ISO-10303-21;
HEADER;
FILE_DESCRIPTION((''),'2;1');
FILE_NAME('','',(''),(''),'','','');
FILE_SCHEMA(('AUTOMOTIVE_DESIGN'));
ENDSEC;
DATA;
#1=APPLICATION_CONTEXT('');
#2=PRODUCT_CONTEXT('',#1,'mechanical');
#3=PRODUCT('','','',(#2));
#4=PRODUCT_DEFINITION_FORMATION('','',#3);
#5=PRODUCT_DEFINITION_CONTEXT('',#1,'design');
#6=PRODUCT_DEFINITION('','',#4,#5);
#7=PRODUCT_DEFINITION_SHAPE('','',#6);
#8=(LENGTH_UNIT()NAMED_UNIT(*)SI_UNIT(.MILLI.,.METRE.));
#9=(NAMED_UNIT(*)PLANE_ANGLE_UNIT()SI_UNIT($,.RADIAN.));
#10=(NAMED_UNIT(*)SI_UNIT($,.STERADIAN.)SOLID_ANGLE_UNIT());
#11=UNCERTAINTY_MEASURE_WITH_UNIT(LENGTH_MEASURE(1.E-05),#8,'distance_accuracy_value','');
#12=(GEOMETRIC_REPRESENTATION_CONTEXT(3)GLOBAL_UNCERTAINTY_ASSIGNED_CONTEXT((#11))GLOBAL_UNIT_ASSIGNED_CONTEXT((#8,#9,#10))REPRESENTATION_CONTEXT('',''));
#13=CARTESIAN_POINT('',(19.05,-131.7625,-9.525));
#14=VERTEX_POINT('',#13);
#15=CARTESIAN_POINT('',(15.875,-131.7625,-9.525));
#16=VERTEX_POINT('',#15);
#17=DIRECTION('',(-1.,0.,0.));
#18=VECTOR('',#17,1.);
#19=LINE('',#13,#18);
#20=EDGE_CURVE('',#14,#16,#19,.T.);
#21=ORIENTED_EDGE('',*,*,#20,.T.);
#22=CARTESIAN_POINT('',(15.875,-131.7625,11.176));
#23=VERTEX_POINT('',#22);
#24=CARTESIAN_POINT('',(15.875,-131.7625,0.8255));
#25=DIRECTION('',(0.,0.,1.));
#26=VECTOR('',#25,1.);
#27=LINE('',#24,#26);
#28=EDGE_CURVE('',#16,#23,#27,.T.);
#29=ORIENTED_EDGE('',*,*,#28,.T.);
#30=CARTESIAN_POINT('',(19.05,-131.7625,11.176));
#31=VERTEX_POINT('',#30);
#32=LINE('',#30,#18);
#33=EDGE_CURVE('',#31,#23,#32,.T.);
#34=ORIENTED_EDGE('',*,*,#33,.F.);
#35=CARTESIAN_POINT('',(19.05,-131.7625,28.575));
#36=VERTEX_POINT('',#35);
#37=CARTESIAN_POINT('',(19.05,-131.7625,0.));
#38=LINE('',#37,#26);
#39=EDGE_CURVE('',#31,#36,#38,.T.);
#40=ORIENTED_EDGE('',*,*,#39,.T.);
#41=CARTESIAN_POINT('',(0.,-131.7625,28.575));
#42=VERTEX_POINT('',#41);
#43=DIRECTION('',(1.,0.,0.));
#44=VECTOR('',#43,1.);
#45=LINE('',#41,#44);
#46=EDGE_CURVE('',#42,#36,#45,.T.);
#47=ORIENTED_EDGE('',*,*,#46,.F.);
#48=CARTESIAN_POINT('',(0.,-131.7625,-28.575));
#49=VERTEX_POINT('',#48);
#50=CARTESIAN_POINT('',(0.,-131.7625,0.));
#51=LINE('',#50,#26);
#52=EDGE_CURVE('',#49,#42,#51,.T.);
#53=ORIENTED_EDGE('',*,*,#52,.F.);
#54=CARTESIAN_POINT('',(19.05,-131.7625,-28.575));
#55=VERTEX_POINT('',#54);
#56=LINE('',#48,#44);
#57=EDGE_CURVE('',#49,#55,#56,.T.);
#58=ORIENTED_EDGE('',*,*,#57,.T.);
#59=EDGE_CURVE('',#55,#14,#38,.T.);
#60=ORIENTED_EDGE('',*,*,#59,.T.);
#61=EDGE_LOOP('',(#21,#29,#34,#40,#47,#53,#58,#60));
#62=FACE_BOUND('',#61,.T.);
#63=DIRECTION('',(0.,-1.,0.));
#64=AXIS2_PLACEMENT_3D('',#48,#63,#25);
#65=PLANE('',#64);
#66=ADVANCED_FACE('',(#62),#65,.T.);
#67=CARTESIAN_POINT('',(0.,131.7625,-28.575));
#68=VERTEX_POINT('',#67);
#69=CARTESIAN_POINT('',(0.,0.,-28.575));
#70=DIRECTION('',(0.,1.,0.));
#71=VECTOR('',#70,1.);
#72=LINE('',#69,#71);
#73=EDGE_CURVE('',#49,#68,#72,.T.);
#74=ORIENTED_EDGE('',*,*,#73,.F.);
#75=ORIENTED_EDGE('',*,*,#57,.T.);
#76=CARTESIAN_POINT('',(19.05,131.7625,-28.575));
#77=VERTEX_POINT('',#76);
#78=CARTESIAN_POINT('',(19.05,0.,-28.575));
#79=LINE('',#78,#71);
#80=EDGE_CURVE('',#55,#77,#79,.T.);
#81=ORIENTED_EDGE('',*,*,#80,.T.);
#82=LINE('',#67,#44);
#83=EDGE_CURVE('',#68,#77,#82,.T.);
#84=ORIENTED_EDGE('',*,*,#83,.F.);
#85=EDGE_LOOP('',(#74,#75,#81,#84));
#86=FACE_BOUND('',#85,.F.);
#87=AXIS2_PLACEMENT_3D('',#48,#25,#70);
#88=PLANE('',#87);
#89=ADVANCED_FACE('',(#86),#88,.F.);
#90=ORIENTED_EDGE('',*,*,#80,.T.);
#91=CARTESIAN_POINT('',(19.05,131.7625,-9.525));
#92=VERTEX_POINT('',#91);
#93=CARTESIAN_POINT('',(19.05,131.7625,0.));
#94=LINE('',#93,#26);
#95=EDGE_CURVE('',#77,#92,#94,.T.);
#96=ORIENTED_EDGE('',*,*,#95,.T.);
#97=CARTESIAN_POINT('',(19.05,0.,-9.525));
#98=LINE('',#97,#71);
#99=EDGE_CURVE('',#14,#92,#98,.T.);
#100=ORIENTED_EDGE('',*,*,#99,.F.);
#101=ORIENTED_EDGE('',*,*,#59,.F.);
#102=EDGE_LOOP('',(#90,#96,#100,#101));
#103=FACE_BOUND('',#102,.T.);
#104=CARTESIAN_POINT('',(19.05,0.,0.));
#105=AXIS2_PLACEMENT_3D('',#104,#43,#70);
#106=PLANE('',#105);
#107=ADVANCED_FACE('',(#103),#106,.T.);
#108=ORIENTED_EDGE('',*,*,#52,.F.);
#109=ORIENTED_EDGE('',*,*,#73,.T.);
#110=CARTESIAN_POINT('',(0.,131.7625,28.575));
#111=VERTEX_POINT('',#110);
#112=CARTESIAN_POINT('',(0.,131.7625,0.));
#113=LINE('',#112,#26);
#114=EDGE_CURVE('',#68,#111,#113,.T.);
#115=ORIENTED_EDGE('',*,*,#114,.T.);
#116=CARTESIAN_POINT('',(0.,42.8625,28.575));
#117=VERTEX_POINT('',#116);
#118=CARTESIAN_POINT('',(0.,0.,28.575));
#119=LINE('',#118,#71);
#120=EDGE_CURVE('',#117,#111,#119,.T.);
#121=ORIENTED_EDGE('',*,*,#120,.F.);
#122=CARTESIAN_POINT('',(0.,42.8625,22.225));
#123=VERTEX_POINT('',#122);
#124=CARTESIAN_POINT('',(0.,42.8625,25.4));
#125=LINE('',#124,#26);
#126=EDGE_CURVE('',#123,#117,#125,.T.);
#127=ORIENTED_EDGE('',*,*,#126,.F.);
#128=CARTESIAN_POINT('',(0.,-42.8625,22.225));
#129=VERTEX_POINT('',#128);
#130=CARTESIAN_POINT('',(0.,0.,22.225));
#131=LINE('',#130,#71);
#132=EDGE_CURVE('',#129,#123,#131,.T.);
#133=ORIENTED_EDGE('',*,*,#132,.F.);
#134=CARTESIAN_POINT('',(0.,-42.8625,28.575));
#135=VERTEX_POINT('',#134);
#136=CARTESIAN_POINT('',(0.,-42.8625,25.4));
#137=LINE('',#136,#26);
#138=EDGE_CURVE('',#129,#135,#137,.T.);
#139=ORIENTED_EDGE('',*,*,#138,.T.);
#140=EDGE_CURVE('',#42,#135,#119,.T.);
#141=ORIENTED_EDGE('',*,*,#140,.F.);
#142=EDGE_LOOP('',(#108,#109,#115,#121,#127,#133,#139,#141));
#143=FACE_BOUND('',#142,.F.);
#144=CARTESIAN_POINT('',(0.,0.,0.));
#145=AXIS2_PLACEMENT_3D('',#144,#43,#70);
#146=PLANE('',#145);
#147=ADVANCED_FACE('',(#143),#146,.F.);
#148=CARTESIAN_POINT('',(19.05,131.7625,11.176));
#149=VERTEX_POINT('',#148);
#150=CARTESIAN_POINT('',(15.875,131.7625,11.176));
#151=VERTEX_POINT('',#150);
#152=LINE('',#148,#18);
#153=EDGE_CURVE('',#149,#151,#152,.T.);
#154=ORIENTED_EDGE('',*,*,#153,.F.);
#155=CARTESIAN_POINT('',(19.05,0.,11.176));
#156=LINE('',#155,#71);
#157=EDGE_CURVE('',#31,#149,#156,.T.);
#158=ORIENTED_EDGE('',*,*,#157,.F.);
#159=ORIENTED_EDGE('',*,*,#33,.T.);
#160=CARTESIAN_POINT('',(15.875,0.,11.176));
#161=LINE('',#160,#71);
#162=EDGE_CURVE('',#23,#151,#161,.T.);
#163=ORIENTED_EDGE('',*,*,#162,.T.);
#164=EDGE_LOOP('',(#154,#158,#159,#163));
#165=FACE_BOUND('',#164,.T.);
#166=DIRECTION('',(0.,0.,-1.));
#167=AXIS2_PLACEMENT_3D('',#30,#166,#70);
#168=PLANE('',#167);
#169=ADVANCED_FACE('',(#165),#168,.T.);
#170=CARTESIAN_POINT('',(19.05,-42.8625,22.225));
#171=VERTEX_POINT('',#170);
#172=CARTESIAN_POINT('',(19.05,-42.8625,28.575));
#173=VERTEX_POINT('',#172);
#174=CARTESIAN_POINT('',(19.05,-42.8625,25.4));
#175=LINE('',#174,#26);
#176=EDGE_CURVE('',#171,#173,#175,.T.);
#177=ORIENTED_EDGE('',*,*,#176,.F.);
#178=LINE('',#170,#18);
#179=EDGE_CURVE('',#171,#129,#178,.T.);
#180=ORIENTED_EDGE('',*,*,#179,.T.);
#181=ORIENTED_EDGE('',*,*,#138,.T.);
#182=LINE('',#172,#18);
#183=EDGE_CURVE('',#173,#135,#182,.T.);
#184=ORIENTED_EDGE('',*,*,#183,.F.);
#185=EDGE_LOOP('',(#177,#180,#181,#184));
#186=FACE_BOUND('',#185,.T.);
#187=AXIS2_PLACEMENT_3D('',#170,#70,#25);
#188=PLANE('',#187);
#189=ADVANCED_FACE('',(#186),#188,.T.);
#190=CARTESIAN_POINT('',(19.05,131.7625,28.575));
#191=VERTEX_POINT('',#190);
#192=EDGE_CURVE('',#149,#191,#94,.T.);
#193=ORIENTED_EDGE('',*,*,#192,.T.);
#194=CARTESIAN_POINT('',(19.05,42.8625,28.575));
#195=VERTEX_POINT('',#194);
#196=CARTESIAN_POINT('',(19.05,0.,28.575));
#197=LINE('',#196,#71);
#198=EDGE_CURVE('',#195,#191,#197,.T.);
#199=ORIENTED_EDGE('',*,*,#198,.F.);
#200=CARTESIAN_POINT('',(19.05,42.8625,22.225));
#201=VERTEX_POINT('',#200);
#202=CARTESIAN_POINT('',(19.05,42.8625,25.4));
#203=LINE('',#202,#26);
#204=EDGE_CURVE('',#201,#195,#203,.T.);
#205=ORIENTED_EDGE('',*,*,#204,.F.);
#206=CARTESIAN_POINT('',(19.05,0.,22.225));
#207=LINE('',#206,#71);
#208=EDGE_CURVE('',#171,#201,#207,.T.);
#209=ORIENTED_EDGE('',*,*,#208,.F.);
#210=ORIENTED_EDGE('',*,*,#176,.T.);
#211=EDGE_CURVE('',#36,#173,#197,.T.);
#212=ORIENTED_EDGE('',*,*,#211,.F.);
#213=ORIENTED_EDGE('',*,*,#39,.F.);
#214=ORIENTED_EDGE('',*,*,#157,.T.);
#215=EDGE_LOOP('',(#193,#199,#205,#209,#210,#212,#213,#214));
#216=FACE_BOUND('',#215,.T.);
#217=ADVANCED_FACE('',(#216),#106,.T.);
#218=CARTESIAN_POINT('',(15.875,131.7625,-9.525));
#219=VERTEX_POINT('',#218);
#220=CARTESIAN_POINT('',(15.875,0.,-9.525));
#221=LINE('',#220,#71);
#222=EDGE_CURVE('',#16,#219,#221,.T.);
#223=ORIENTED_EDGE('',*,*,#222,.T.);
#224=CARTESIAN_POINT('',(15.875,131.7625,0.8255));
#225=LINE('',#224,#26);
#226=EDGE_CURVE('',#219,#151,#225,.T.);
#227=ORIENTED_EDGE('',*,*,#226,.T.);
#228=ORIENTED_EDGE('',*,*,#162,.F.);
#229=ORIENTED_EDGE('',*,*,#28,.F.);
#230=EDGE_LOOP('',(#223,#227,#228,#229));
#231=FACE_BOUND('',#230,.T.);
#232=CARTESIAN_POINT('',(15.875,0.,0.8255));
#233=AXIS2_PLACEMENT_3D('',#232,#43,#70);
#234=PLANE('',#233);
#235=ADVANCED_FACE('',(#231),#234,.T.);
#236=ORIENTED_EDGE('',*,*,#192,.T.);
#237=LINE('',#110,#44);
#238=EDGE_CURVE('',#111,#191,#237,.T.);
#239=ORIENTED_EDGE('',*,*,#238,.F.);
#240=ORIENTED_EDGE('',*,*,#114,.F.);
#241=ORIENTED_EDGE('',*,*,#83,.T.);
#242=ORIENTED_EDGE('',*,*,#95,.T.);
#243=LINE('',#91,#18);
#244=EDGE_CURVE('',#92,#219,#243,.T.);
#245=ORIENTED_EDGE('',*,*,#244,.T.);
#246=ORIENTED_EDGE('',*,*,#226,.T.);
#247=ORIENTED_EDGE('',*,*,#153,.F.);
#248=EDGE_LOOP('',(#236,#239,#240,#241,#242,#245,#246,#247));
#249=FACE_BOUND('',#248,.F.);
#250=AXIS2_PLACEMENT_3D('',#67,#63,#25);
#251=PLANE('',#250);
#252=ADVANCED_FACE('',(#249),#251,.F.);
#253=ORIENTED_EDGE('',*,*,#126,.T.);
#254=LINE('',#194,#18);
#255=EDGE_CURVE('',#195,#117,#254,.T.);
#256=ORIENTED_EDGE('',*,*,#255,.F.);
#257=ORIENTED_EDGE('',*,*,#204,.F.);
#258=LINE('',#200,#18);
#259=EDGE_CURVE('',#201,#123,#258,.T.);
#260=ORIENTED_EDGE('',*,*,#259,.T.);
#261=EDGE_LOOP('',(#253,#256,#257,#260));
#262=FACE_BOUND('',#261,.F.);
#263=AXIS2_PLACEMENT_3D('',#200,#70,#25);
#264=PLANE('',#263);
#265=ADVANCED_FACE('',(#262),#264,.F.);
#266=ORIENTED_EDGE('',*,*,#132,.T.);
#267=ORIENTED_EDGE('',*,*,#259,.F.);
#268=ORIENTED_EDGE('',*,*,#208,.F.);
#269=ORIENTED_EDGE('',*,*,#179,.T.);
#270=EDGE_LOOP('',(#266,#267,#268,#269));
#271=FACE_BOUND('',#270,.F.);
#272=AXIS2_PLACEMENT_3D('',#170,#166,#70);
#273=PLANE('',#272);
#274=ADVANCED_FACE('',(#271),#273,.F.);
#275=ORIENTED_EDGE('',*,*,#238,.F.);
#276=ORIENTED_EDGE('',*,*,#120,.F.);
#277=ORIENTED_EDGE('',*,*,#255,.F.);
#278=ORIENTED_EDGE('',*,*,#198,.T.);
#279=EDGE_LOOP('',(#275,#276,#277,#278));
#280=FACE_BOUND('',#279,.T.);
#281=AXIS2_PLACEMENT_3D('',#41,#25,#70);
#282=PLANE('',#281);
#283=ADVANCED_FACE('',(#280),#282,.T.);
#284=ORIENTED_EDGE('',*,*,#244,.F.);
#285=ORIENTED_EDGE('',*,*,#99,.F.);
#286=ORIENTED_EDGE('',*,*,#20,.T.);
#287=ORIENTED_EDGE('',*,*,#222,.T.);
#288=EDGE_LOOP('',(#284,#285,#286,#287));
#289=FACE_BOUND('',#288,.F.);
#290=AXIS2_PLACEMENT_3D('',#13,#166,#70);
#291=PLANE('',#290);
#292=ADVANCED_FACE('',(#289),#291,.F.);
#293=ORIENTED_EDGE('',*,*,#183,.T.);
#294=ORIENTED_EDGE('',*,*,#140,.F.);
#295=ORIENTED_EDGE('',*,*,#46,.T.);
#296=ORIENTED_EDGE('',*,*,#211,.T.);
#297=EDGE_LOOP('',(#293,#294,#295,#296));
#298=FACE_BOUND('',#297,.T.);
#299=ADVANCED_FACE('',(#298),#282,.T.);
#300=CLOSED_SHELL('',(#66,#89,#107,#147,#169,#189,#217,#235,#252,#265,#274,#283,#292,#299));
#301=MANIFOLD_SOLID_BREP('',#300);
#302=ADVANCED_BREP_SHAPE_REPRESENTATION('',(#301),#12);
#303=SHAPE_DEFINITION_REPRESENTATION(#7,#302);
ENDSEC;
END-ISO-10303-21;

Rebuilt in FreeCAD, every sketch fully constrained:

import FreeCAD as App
import Part
import Sketcher

V = App.Vector
Q = App.Units.Quantity

doc = App.newDocument("Part")
body = doc.addObject("PartDesign::Body", "Body")

# Sketch on YZ plane
sketch1 = body.newObject("Sketcher::SketchObject", "Sketch")
sketch1.AttachmentSupport = (doc.getObject("YZ_Plane"), [""])
sketch1.MapMode = "FlatFace"
sketch1.addGeometry(Part.LineSegment(V(-132, 29, 0), V(-132, -29, 0)), False)
sketch1.addGeometry(Part.LineSegment(V(-132, -29, 0), V(132, -29, 0)), False)
sketch1.addGeometry(Part.LineSegment(V(132, -29, 0), V(132, 29, 0)), False)
sketch1.addGeometry(Part.LineSegment(V(132, 29, 0), V(-132, 29, 0)), False)
sketch1.addConstraint(Sketcher.Constraint("Coincident", 0, 2, 1, 1))
sketch1.addConstraint(Sketcher.Constraint("Coincident", 1, 2, 2, 1))
sketch1.addConstraint(Sketcher.Constraint("Coincident", 2, 2, 3, 1))
sketch1.addConstraint(Sketcher.Constraint("Coincident", 3, 2, 0, 1))
sketch1.addConstraint(Sketcher.Constraint("Vertical", 0))
sketch1.addConstraint(Sketcher.Constraint("Horizontal", 1))
sketch1.addConstraint(Sketcher.Constraint("Vertical", 2))
sketch1.addConstraint(Sketcher.Constraint("Horizontal", 3))
sketch1.addConstraint(Sketcher.Constraint("Symmetric", 0, 2, 2, 2, -1, 1))
sketch1.addConstraint(Sketcher.Constraint("DistanceY", 0, 2, 0, 1, Q("2.25 in")))
sketch1.addConstraint(Sketcher.Constraint("DistanceX", 1, 1, 1, 2, Q("10.375 in")))
pad1 = body.newObject("PartDesign::Pad", "Pad")
pad1.Profile = sketch1
pad1.Length = Q("0.75 in")

# Sketch on YZ plane
sketch2 = body.newObject("Sketcher::SketchObject", "Sketch001")
sketch2.AttachmentSupport = (doc.getObject("YZ_Plane"), [""])
sketch2.MapMode = "FlatFace"
sketch2.AttachmentOffset = App.Placement(V(0, 0, 0.75 * 25.4), App.Rotation())
sketch2.addGeometry(Part.LineSegment(V(-132, 11, 0), V(-132, -10, 0)), False)
sketch2.addGeometry(Part.LineSegment(V(-132, -10, 0), V(132, -10, 0)), False)
sketch2.addGeometry(Part.LineSegment(V(132, -10, 0), V(132, 11, 0)), False)
sketch2.addGeometry(Part.LineSegment(V(132, 11, 0), V(-132, 11, 0)), False)
sketch2.addConstraint(Sketcher.Constraint("Coincident", 0, 2, 1, 1))
sketch2.addConstraint(Sketcher.Constraint("Coincident", 1, 2, 2, 1))
sketch2.addConstraint(Sketcher.Constraint("Coincident", 2, 2, 3, 1))
sketch2.addConstraint(Sketcher.Constraint("Coincident", 3, 2, 0, 1))
sketch2.addConstraint(Sketcher.Constraint("Vertical", 0))
sketch2.addConstraint(Sketcher.Constraint("Horizontal", 1))
sketch2.addConstraint(Sketcher.Constraint("Vertical", 2))
sketch2.addConstraint(Sketcher.Constraint("Horizontal", 3))
sketch2.addConstraint(Sketcher.Constraint("DistanceX", 1, 1, 1, 2, Q("10.375 in")))
sketch2.addConstraint(Sketcher.Constraint("DistanceY", 0, 2, 0, 1, Q("0.815 in")))
sketch2.addConstraint(Sketcher.Constraint("DistanceY", -1, 1, 2, 2, Q("0.44 in")))
sketch2.addConstraint(Sketcher.Constraint("DistanceX", 0, 2, -1, 1, Q("5.1875 in")))
pocket1 = body.newObject("PartDesign::Pocket", "Pocket")
pocket1.Profile = sketch2
pocket1.Length = Q("0.125 in")

# Sketch on YZ plane
sketch3 = body.newObject("Sketcher::SketchObject", "Sketch002")
sketch3.AttachmentSupport = (doc.getObject("YZ_Plane"), [""])
sketch3.MapMode = "FlatFace"
sketch3.AttachmentOffset = App.Placement(V(0, 0, 0.75 * 25.4), App.Rotation())
sketch3.addGeometry(Part.LineSegment(V(-43, 29, 0), V(-43, 22, 0)), False)
sketch3.addGeometry(Part.LineSegment(V(-43, 22, 0), V(43, 22, 0)), False)
sketch3.addGeometry(Part.LineSegment(V(43, 22, 0), V(43, 29, 0)), False)
sketch3.addGeometry(Part.LineSegment(V(43, 29, 0), V(-43, 29, 0)), False)
sketch3.addConstraint(Sketcher.Constraint("Coincident", 0, 2, 1, 1))
sketch3.addConstraint(Sketcher.Constraint("Coincident", 1, 2, 2, 1))
sketch3.addConstraint(Sketcher.Constraint("Coincident", 2, 2, 3, 1))
sketch3.addConstraint(Sketcher.Constraint("Coincident", 3, 2, 0, 1))
sketch3.addConstraint(Sketcher.Constraint("Vertical", 0))
sketch3.addConstraint(Sketcher.Constraint("Horizontal", 1))
sketch3.addConstraint(Sketcher.Constraint("Vertical", 2))
sketch3.addConstraint(Sketcher.Constraint("Horizontal", 3))
sketch3.addConstraint(Sketcher.Constraint("DistanceY", 0, 2, 0, 1, Q("0.25 in")))
sketch3.addConstraint(Sketcher.Constraint("DistanceX", 1, 1, 1, 2, Q("3.375 in")))
sketch3.addConstraint(Sketcher.Constraint("DistanceX", 0, 2, -1, 1, Q("1.6875 in")))
sketch3.addConstraint(Sketcher.Constraint("DistanceY", -1, 1, 0, 2, Q("0.875 in")))
pocket2 = body.newObject("PartDesign::Pocket", "Pocket001")
pocket2.Profile = sketch3
pocket2.Type = "ThroughAll"

doc.recompute()
